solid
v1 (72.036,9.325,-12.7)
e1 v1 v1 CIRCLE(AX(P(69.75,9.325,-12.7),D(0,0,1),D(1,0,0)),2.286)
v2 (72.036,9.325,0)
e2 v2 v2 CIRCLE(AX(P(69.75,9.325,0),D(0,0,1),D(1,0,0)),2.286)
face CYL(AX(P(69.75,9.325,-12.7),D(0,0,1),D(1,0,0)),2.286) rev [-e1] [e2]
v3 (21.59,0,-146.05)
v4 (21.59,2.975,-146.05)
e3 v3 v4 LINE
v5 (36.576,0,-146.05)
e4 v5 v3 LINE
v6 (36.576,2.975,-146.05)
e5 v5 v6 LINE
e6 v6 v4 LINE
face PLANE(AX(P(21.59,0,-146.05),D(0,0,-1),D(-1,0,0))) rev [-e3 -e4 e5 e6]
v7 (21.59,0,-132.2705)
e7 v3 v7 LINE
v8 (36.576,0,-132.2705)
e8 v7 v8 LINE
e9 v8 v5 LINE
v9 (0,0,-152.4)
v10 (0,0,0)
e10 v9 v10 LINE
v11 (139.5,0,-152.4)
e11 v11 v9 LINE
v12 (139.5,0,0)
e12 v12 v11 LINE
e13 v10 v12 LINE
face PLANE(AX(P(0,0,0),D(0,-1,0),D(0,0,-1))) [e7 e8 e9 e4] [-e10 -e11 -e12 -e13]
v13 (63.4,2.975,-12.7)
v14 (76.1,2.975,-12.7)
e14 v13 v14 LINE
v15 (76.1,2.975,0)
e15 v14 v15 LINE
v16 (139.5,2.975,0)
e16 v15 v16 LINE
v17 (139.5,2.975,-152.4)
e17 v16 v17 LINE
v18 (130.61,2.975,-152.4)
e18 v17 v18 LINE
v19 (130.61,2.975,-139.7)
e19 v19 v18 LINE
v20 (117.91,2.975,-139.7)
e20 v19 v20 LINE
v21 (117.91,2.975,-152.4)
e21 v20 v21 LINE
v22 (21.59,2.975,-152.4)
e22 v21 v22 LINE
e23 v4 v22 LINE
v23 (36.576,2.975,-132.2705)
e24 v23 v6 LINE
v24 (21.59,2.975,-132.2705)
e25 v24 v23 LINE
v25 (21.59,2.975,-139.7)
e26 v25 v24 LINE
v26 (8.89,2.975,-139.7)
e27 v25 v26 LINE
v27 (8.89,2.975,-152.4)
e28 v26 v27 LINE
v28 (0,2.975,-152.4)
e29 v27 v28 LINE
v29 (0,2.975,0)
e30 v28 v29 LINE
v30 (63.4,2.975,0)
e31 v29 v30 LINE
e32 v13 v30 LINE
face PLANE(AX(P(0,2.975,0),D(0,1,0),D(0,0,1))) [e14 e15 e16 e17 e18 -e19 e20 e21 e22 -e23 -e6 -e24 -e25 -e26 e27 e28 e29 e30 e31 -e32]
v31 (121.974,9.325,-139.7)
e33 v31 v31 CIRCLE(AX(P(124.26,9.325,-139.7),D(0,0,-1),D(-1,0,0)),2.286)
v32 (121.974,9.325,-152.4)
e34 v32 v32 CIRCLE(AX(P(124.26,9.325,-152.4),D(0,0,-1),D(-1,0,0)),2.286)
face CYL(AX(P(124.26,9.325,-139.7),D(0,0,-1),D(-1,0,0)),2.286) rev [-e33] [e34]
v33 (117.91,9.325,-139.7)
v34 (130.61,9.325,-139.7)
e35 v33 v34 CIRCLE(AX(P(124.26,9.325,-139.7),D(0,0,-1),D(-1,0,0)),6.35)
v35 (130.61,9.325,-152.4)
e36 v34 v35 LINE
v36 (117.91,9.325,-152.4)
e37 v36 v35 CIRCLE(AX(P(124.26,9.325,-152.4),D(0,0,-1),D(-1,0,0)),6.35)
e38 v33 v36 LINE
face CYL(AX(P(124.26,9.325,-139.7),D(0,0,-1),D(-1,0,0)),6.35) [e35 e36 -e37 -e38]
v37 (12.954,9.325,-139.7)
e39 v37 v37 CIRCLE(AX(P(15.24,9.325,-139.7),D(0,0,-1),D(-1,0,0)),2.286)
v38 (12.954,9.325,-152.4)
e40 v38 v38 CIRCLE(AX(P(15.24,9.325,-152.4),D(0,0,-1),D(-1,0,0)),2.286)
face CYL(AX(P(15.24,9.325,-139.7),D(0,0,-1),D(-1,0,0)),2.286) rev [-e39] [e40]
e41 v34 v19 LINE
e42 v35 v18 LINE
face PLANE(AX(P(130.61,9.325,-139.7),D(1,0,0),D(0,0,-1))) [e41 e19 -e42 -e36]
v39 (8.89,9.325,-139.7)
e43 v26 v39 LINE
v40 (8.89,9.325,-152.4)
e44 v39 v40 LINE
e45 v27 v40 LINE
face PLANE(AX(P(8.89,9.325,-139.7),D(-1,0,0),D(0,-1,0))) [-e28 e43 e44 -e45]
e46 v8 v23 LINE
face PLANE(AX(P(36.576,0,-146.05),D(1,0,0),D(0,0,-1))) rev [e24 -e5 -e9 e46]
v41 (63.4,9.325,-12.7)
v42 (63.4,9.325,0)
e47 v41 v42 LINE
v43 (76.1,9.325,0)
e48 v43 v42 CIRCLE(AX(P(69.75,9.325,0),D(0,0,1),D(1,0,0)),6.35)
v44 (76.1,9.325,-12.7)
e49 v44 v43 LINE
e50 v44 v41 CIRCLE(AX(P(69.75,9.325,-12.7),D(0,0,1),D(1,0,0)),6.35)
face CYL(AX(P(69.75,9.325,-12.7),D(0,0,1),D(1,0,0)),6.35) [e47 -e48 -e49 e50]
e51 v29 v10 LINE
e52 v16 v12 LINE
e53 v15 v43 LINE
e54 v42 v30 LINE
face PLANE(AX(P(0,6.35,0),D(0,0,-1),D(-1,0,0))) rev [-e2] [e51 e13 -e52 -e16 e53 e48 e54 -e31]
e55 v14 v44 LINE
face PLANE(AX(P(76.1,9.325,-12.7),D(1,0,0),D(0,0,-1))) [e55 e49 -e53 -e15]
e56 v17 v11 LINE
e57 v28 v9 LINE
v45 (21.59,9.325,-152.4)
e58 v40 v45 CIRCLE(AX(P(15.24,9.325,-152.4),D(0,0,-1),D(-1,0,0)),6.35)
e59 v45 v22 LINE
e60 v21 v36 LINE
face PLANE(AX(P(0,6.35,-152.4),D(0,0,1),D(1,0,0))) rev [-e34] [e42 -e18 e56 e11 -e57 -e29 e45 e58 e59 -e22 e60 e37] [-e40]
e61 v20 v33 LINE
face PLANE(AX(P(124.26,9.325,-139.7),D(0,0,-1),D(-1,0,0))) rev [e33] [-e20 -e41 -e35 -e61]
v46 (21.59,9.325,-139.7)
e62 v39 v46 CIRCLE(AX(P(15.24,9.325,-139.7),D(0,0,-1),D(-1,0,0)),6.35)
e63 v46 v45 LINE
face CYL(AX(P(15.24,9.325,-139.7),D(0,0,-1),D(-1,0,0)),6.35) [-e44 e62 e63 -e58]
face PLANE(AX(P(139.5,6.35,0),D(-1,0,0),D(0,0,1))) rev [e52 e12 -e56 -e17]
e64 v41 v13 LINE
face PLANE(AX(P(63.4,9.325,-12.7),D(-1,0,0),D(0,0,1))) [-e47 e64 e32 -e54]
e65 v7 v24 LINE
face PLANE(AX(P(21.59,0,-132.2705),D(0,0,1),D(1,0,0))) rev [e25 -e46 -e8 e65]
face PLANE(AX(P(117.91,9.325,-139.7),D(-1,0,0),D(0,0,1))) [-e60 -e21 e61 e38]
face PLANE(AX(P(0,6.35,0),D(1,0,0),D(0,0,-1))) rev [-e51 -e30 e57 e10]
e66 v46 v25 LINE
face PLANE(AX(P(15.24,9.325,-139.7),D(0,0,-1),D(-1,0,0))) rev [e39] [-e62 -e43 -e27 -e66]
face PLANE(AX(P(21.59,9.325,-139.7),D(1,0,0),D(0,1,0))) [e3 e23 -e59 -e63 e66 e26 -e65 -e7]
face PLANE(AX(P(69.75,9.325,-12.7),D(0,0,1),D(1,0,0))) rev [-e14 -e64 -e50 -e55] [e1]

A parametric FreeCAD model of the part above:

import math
import FreeCAD as App
import Part
import Sketcher
from FreeCAD import Vector
Q = App.Units.Quantity

doc = App.newDocument("Part")
body = doc.addObject("PartDesign::Body", "Body")

# Sketch on XZ plane
sketch1 = doc.addObject("Sketcher::SketchObject", "Sketch")
body.addObject(sketch1)
sketch1.AttachmentSupport = (doc.XZ_Plane, [""])
sketch1.MapMode = "FlatFace"
sketch1.addGeometry(Part.LineSegment(Vector(0, -152.4, 0), Vector(0, 0, 0)), False)
sketch1.addGeometry(Part.LineSegment(Vector(0, 0, 0), Vector(139.5, 0, 0)), False)
sketch1.addGeometry(Part.LineSegment(Vector(139.5, 0, 0), Vector(139.5, -152.4, 0)), False)
sketch1.addGeometry(Part.LineSegment(Vector(139.5, -152.4, 0), Vector(0, -152.4, 0)), False)
sketch1.addConstraint(Sketcher.Constraint("Coincident", 0, 2, 1, 1))
sketch1.addConstraint(Sketcher.Constraint("Coincident", 1, 2, 2, 1))
sketch1.addConstraint(Sketcher.Constraint("Coincident", 2, 2, 3, 1))
sketch1.addConstraint(Sketcher.Constraint("Coincident", 3, 2, 0, 1))
sketch1.addConstraint(Sketcher.Constraint("Vertical", 0))
sketch1.addConstraint(Sketcher.Constraint("Horizontal", 1))
sketch1.addConstraint(Sketcher.Constraint("Vertical", 2))
sketch1.addConstraint(Sketcher.Constraint("Horizontal", 3))
sketch1.addConstraint(Sketcher.Constraint("Coincident", 0, 2, -1, 1))
sketch1.addConstraint(Sketcher.Constraint("DistanceY", 0, 1, 0, 2, Q("6 in")))
sketch1.addConstraint(Sketcher.Constraint("DistanceX", 1, 1, 1, 2, Q("139.5 mm")))
pad1 = doc.addObject("PartDesign::Pad", "Pad")
body.addObject(pad1)
pad1.Profile = sketch1
pad1.Length = Q("0.25 in")
pad1.Reversed = True

# Sketch on XZ plane
sketch2 = doc.addObject("Sketcher::SketchObject", "Sketch001")
body.addObject(sketch2)
sketch2.AttachmentSupport = (doc.XZ_Plane, [""])
sketch2.MapMode = "FlatFace"
sketch2.AttachmentOffset = App.Placement(Vector(0, 0, -0.25 * 25.4), App.Rotation())
sketch2.addGeometry(Part.LineSegment(Vector(0, -152.4, 0), Vector(0, 0, 0)), False)
sketch2.addGeometry(Part.LineSegment(Vector(0, 0, 0), Vector(139.5, 0, 0)), False)
sketch2.addGeometry(Part.LineSegment(Vector(139.5, 0, 0), Vector(139.5, -152.4, 0)), False)
sketch2.addGeometry(Part.LineSegment(Vector(139.5, -152.4, 0), Vector(0, -152.4, 0)), False)
sketch2.addConstraint(Sketcher.Constraint("Coincident", 0, 2, 1, 1))
sketch2.addConstraint(Sketcher.Constraint("Coincident", 1, 2, 2, 1))
sketch2.addConstraint(Sketcher.Constraint("Coincident", 2, 2, 3, 1))
sketch2.addConstraint(Sketcher.Constraint("Coincident", 3, 2, 0, 1))
sketch2.addConstraint(Sketcher.Constraint("Vertical", 0))
sketch2.addConstraint(Sketcher.Constraint("Horizontal", 1))
sketch2.addConstraint(Sketcher.Constraint("Vertical", 2))
sketch2.addConstraint(Sketcher.Constraint("Horizontal", 3))
sketch2.addConstraint(Sketcher.Constraint("Coincident", 0, 2, -1, 1))
sketch2.addConstraint(Sketcher.Constraint("DistanceY", 0, 1, 0, 2, Q("6 in")))
sketch2.addConstraint(Sketcher.Constraint("DistanceX", 1, 1, 1, 2, Q("139.5 mm")))
pocket1 = doc.addObject("PartDesign::Pocket", "Pocket")
body.addObject(pocket1)
pocket1.Profile = sketch2
pocket1.Length = 3.375
pocket1.Reversed = True

# Sketch on XY plane
sketch3 = doc.addObject("Sketcher::SketchObject", "Sketch002")
body.addObject(sketch3)
sketch3.AttachmentSupport = (doc.XY_Plane, [""])
sketch3.MapMode = "FlatFace"
sketch3.addGeometry(Part.LineSegment(Vector(63.4, 9.325, 0), Vector(63.4, 2.975, 0)), False)
sketch3.addGeometry(Part.LineSegment(Vector(63.4, 2.975, 0), Vector(76.1, 2.975, 0)), False)
sketch3.addGeometry(Part.LineSegment(Vector(76.1, 2.975, 0), Vector(76.1, 9.325, 0)), False)
sketch3.addGeometry(Part.ArcOfCircle(Part.Circle(Vector(69.75, 9.325, 0), Vector(0, 0, 1), 6.35), math.radians(0), math.radians(180.000001)), False)
sketch3.addGeometry(Part.Circle(Vector(69.75, 9.325, 0), Vector(0, 0, 1), 2.286), False)
sketch3.addConstraint(Sketcher.Constraint("Coincident", 0, 2, 1, 1))
sketch3.addConstraint(Sketcher.Constraint("Coincident", 1, 2, 2, 1))
sketch3.addConstraint(Sketcher.Constraint("Tangent", 2, 2, 3, 1))
sketch3.addConstraint(Sketcher.Constraint("Tangent", 3, 2, 0, 1))
sketch3.addConstraint(Sketcher.Constraint("Vertical", 0))
sketch3.addConstraint(Sketcher.Constraint("Horizontal", 1))
sketch3.addConstraint(Sketcher.Constraint("Vertical", 2))
sketch3.addConstraint(Sketcher.Constraint("Coincident", 4, 3, 3, 3))
sketch3.addConstraint(Sketcher.Constraint("Diameter", 4, Q("0.18 in")))
sketch3.addConstraint(Sketcher.Constraint("Radius", 3, Q("0.25 in")))
sketch3.addConstraint(Sketcher.Constraint("DistanceY", 0, 2, 0, 1, Q("0.25 in")))
sketch3.addConstraint(Sketcher.Constraint("DistanceX", -1, 1, 3, 3, Q("69.75 mm")))
sketch3.addConstraint(Sketcher.Constraint("DistanceY", -1, 1, 3, 3, Q("9.325 mm")))
pad2 = doc.addObject("PartDesign::Pad", "Pad001")
body.addObject(pad2)
pad2.Profile = sketch3
pad2.Length = Q("0.5 in")
pad2.Reversed = True

# Sketch on XY plane
sketch4 = doc.addObject("Sketcher::SketchObject", "Sketch003")
body.addObject(sketch4)
sketch4.AttachmentSupport = (doc.XY_Plane, [""])
sketch4.MapMode = "FlatFace"
sketch4.AttachmentOffset = App.Placement(Vector(0, 0, -6 * 25.4), App.Rotation())
sketch4.addGeometry(Part.LineSegment(Vector(130.61, 9.325, 0), Vector(130.61, 2.975, 0)), False)
sketch4.addGeometry(Part.LineSegment(Vector(130.61, 2.975, 0), Vector(117.91, 2.975, 0)), False)
sketch4.addGeometry(Part.LineSegment(Vector(117.91, 2.975, 0), Vector(117.91, 9.325, 0)), False)
sketch4.addGeometry(Part.ArcOfCircle(Part.Circle(Vector(124.26, 9.325, 0), Vector(0, 0, 1), 6.35), math.radians(0), math.radians(180)), False)
sketch4.addGeometry(Part.Circle(Vector(124.26, 9.325, 0), Vector(0, 0, 1), 2.286), False)
sketch4.addGeometry(Part.LineSegment(Vector(21.59, 9.325, 0), Vector(21.59, 2.975, 0)), False)
sketch4.addGeometry(Part.LineSegment(Vector(21.59, 2.975, 0), Vector(8.89, 2.975, 0)), False)
sketch4.addGeometry(Part.LineSegment(Vector(8.89, 2.975, 0), Vector(8.89, 9.325, 0)), False)
sketch4.addGeometry(Part.ArcOfCircle(Part.Circle(Vector(15.24, 9.325, 0), Vector(0, 0, 1), 6.35), math.radians(0), math.radians(180)), False)
sketch4.addGeometry(Part.Circle(Vector(15.24, 9.325, 0), Vector(0, 0, 1), 2.286), False)
sketch4.addConstraint(Sketcher.Constraint("Coincident", 0, 2, 1, 1))
sketch4.addConstraint(Sketcher.Constraint("Coincident", 1, 2, 2, 1))
sketch4.addConstraint(Sketcher.Constraint("Tangent", 2, 2, 3, 2))
sketch4.addConstraint(Sketcher.Constraint("Tangent", 3, 1, 0, 1))
sketch4.addConstraint(Sketcher.Constraint("Coincident", 5, 2, 6, 1))
sketch4.addConstraint(Sketcher.Constraint("Coincident", 6, 2, 7, 1))
sketch4.addConstraint(Sketcher.Constraint("Tangent", 7, 2, 8, 2))
sketch4.addConstraint(Sketcher.Constraint("Tangent", 8, 1, 5, 1))
sketch4.addConstraint(Sketcher.Constraint("Vertical", 0))
sketch4.addConstraint(Sketcher.Constraint("Horizontal", 1))
sketch4.addConstraint(Sketcher.Constraint("Vertical", 2))
sketch4.addConstraint(Sketcher.Constraint("Vertical", 5))
sketch4.addConstraint(Sketcher.Constraint("Horizontal", 6))
sketch4.addConstraint(Sketcher.Constraint("Vertical", 7))
sketch4.addConstraint(Sketcher.Constraint("Coincident", 4, 3, 3, 3))
sketch4.addConstraint(Sketcher.Constraint("Coincident", 9, 3, 8, 3))
sketch4.addConstraint(Sketcher.Constraint("Equal", 3, 8))
sketch4.addConstraint(Sketcher.Constraint("Equal", 4, 9))
sketch4.addConstraint(Sketcher.Constraint("Horizontal", 4, 3, 8, 3))
sketch4.addConstraint(Sketcher.Constraint("Horizontal", 1, 2, 5, 2))
sketch4.addConstraint(Sketcher.Constraint("Diameter", 4, Q("0.18 in")))
sketch4.addConstraint(Sketcher.Constraint("Radius", 3, Q("0.25 in")))
sketch4.addConstraint(Sketcher.Constraint("DistanceY", 0, 2, 0, 1, Q("0.25 in")))
sketch4.addConstraint(Sketcher.Constraint("DistanceX", -1, 1, 8, 3, Q("0.6 in")))
sketch4.addConstraint(Sketcher.Constraint("DistanceX", -1, 1, 3, 3, Q("124.26 mm")))
sketch4.addConstraint(Sketcher.Constraint("DistanceY", -1, 1, 3, 3, Q("9.325 mm")))
pad3 = doc.addObject("PartDesign::Pad", "Pad002")
body.addObject(pad3)
pad3.Profile = sketch4
pad3.Length = Q("0.5 in")

# Sketch on XZ plane
sketch5 = doc.addObject("Sketcher::SketchObject", "Sketch004")
body.addObject(sketch5)
sketch5.AttachmentSupport = (doc.XZ_Plane, [""])
sketch5.MapMode = "FlatFace"
sketch5.AttachmentOffset = App.Placement(Vector(0, 0, -2.975), App.Rotation())
sketch5.addGeometry(Part.LineSegment(Vector(21.59, -146.05, 0), Vector(21.59, -132.2705, 0)), False)
sketch5.addGeometry(Part.LineSegment(Vector(21.59, -132.2705, 0), Vector(36.576, -132.2705, 0)), False)
sketch5.addGeometry(Part.LineSegment(Vector(36.576, -132.2705, 0), Vector(36.576, -146.05, 0)), False)
sketch5.addGeometry(Part.LineSegment(Vector(36.576, -146.05, 0), Vector(21.59, -146.05, 0)), False)
sketch5.addConstraint(Sketcher.Constraint("Coincident", 0, 2, 1, 1))
sketch5.addConstraint(Sketcher.Constraint("Coincident", 1, 2, 2, 1))
sketch5.addConstraint(Sketcher.Constraint("Coincident", 2, 2, 3, 1))
sketch5.addConstraint(Sketcher.Constraint("Coincident", 3, 2, 0, 1))
sketch5.addConstraint(Sketcher.Constraint("Vertical", 0))
sketch5.addConstraint(Sketcher.Constraint("Horizontal", 1))
sketch5.addConstraint(Sketcher.Constraint("Vertical", 2))
sketch5.addConstraint(Sketcher.Constraint("Horizontal", 3))
sketch5.addConstraint(Sketcher.Constraint("DistanceX", 1, 1, 1, 2, Q("0.59 in")))
sketch5.addConstraint(Sketcher.Constraint("DistanceX", -1, 1, 0, 2, Q("0.85 in")))
sketch5.addConstraint(Sketcher.Constraint("DistanceY", 2, 2, -1, 1, Q("5.75 in")))
sketch5.addConstraint(Sketcher.Constraint("DistanceY", 0, 1, 0, 2, Q("0.5425 in")))
pocket2 = doc.addObject("PartDesign::Pocket", "Pocket001")
body.addObject(pocket2)
pocket2.Profile = sketch5
pocket2.Type = "ThroughAll"
pocket2.Reversed = True

doc.recompute()
